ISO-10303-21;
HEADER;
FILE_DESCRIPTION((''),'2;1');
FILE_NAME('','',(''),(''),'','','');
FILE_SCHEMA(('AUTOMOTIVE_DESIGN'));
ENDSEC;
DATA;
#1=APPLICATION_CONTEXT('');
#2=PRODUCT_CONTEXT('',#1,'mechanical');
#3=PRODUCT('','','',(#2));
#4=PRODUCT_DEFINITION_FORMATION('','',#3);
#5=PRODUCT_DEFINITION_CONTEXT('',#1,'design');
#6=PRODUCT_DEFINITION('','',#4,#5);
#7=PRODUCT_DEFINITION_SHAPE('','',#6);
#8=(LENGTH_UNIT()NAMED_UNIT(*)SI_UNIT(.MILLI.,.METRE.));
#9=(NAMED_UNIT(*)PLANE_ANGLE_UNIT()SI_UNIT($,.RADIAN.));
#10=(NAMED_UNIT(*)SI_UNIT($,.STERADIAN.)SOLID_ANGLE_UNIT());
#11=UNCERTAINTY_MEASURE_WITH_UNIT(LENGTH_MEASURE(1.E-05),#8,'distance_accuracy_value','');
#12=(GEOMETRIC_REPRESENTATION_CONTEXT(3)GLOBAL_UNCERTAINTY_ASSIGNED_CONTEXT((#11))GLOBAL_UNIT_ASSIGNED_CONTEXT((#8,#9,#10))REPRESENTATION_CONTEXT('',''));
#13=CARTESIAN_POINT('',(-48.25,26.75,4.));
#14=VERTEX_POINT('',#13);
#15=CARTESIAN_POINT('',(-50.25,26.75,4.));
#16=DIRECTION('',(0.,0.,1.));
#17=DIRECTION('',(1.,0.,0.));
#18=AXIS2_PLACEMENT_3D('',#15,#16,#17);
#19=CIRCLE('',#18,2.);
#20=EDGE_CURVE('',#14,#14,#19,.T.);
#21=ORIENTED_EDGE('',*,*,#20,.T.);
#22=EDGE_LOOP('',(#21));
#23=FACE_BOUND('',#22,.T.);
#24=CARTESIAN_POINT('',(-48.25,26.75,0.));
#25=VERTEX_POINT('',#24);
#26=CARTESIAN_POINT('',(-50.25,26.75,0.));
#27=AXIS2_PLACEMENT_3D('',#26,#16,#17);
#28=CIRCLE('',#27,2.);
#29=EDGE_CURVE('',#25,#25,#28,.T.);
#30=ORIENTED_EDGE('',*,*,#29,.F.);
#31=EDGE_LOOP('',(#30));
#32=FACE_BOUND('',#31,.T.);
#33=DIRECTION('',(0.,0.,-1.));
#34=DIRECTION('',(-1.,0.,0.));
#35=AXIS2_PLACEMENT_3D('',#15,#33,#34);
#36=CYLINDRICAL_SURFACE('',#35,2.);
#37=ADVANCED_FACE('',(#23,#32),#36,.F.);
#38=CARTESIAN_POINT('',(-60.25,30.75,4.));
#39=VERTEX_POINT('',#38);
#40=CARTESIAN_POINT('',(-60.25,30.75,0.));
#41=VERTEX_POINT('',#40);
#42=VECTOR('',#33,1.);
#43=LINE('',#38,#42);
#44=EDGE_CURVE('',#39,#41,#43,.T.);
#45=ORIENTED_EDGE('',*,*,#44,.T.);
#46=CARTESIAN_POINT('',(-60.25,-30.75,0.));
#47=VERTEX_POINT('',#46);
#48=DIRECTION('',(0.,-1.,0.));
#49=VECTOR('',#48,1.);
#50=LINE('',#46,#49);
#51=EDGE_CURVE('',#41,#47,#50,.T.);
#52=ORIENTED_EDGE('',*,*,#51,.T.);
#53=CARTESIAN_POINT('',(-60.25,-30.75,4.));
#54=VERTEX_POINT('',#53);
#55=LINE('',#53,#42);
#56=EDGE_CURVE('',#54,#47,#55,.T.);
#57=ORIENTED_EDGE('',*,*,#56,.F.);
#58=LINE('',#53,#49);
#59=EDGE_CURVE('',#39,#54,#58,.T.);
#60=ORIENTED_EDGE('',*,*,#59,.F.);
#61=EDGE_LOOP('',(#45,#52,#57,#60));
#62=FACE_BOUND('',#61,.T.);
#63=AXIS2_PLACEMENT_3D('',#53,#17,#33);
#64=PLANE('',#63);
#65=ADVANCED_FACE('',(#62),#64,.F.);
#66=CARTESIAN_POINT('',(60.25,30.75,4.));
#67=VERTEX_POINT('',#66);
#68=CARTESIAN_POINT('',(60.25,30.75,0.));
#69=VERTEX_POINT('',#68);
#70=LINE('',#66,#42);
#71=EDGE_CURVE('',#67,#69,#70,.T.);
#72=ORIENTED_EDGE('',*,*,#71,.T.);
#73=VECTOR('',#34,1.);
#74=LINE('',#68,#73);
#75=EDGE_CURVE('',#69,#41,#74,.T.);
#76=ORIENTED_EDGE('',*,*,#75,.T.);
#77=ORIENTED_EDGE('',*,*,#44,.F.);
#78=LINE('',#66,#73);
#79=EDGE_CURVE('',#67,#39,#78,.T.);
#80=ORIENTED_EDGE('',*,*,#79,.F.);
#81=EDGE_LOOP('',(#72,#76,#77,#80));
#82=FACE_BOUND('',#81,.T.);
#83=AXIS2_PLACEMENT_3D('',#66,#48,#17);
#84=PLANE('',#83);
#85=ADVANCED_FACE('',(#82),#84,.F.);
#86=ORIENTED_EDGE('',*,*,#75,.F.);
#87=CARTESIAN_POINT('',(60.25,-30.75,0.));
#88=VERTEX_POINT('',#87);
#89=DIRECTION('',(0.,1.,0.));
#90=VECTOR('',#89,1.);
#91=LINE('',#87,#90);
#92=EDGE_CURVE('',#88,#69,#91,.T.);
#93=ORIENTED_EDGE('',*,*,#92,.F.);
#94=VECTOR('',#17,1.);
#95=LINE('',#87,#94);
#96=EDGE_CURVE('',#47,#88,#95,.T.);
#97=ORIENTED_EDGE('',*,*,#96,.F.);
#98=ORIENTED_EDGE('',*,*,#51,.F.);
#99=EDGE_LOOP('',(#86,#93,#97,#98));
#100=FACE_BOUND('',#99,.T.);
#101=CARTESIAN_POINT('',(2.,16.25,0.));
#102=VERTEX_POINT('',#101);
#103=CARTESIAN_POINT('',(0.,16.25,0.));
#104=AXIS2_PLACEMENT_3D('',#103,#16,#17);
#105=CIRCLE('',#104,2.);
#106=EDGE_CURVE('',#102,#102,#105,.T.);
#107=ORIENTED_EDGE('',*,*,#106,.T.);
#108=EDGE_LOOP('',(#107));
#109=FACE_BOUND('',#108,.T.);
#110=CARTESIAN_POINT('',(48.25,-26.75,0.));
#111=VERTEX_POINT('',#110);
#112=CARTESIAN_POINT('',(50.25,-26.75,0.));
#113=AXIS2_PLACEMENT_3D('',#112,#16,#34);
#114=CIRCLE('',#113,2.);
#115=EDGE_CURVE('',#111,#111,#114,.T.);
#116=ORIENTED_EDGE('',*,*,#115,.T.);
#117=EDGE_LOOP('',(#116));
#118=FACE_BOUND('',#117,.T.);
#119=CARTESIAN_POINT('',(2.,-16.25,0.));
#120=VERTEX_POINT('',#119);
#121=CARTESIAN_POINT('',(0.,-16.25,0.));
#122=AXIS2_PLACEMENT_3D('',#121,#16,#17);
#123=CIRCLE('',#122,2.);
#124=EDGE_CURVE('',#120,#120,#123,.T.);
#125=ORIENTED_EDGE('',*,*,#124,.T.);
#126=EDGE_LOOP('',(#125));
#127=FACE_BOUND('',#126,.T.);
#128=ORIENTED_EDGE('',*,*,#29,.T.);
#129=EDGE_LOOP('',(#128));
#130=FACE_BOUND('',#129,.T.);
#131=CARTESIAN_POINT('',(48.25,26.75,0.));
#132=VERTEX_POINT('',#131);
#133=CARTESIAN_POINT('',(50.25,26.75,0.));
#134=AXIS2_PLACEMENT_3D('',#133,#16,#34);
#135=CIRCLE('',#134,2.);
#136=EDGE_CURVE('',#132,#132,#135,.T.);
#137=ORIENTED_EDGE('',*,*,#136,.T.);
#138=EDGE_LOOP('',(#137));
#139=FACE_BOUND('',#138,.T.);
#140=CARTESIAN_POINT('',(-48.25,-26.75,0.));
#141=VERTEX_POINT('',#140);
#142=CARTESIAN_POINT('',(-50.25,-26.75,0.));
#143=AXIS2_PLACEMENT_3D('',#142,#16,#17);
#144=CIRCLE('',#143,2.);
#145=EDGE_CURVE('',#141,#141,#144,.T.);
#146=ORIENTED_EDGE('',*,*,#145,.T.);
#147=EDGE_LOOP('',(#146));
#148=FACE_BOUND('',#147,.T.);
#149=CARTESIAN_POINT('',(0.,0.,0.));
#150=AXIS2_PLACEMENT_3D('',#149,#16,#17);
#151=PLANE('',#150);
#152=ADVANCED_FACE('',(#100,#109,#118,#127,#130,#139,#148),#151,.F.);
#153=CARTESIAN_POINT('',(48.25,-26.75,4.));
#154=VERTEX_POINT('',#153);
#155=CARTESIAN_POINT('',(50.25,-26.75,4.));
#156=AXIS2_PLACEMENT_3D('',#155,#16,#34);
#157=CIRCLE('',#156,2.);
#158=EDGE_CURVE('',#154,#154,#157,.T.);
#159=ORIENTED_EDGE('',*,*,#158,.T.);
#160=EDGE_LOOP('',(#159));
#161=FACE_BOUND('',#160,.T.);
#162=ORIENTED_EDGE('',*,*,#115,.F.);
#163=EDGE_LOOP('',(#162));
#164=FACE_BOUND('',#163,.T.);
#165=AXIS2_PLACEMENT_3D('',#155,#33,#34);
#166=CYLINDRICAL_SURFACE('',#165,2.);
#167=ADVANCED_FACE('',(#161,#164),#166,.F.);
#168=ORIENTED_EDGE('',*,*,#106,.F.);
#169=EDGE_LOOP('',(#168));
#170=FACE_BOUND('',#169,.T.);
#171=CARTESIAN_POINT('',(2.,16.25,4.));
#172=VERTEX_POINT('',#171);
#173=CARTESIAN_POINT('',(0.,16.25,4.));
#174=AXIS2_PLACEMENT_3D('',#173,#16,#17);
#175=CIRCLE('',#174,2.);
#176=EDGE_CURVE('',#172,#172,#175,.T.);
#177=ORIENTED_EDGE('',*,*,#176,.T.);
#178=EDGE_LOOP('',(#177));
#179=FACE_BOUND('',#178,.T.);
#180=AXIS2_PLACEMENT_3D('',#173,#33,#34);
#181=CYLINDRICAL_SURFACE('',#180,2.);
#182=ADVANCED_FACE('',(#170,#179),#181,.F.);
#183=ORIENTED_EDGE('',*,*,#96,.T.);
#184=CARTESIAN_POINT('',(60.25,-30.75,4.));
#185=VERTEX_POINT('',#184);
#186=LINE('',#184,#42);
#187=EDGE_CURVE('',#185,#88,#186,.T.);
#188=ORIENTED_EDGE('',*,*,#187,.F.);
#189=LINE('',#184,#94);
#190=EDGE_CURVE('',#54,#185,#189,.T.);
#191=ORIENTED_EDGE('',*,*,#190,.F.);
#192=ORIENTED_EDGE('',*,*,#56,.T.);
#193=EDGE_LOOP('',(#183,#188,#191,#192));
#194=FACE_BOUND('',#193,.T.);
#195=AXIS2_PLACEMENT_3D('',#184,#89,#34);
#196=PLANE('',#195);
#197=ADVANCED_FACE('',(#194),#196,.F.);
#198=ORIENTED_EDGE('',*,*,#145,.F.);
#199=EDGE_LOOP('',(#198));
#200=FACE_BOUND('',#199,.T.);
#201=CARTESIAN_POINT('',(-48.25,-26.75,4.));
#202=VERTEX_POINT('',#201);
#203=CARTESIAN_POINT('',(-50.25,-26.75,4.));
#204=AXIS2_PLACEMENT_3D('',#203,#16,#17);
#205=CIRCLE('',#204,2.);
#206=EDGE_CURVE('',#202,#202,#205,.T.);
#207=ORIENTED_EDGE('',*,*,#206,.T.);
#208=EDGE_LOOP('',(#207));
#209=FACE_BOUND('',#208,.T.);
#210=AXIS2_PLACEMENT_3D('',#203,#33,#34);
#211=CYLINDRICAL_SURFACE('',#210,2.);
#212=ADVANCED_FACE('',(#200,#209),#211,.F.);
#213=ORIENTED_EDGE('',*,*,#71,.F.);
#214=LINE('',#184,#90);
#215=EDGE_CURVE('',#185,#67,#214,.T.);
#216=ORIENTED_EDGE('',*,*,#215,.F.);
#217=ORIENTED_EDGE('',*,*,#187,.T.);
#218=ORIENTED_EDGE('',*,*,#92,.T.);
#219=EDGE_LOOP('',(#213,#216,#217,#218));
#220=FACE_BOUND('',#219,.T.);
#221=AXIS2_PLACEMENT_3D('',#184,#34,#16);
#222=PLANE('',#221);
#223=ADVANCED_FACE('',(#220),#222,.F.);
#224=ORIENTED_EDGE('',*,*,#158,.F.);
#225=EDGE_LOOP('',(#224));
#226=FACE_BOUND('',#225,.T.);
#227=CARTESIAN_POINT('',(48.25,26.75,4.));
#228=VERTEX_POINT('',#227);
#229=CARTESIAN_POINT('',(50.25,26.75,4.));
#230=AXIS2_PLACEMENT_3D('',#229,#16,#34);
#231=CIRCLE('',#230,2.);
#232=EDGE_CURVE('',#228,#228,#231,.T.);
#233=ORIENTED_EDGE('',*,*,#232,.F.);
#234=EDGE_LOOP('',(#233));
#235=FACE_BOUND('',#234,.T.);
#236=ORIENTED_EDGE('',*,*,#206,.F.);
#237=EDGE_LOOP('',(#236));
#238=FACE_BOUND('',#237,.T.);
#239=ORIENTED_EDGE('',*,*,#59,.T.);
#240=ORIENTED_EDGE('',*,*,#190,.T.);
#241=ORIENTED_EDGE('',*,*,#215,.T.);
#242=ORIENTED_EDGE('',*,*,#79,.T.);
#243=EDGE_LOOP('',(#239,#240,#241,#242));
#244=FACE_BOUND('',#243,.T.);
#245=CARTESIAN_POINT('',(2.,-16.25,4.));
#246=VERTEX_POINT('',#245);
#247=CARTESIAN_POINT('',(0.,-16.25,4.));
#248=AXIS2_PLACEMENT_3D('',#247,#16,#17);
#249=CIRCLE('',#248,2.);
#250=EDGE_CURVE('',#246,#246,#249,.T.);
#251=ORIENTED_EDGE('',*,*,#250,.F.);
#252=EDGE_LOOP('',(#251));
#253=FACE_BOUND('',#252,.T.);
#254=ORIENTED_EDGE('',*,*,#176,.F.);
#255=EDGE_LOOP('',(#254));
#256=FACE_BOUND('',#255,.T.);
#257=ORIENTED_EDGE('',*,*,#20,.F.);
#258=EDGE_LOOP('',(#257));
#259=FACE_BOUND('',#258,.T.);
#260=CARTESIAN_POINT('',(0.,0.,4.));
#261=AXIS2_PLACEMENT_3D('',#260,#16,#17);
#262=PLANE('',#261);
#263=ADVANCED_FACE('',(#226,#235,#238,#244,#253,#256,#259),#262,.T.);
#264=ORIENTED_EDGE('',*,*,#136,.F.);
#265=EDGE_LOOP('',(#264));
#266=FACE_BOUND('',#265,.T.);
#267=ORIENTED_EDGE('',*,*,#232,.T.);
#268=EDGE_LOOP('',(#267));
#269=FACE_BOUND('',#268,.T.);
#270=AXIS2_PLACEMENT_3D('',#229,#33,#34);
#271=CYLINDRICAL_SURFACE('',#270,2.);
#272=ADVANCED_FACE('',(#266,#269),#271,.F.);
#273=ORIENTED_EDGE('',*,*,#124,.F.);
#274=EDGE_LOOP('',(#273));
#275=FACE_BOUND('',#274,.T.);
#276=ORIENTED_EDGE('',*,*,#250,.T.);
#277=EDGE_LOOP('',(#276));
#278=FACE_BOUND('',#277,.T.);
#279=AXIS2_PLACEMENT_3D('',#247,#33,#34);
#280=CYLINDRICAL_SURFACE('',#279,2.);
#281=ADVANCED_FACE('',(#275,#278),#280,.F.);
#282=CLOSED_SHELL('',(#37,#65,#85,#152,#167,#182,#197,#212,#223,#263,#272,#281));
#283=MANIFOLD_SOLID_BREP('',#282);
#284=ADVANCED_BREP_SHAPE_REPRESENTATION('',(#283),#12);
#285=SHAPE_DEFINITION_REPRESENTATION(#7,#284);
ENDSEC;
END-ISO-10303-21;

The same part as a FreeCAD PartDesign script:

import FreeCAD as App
import Part
import Sketcher
Q = App.Units.Quantity


def add_polygon(sketch, points):
    """Adds a closed chain of lines whose ends are joined by coincident constraints."""
    first, n = sketch.GeometryCount, len(points)
    for a, b in zip(points, points[1:] + points[:1]):
        sketch.addGeometry(Part.LineSegment(App.Vector(*a, 0), App.Vector(*b, 0)), False)
    for i in range(n):
        sketch.addConstraint(Sketcher.Constraint("Coincident", first + i, 2, first + (i + 1) % n, 1))

doc = App.newDocument("Part")
body = doc.addObject("PartDesign::Body", "Body")

# Sketch on XY plane
sketch1 = body.newObject("Sketcher::SketchObject", "Sketch")
sketch1.AttachmentSupport = (doc.getObject("XY_Plane"), [""])
sketch1.MapMode = "FlatFace"
add_polygon(sketch1, [(-60.2, 30.8), (-60.2, -30.8), (60.2, -30.8), (60.2, 30.8)])  # lines 0-3
sketch1.addGeometry(Part.Circle(App.Vector(-50.2, -26.8, 0), App.Vector(0, 0, 1), 2), False)  # 4
sketch1.addGeometry(Part.Circle(App.Vector(0, -16.2, 0), App.Vector(0, 0, 1), 2), False)  # 5
sketch1.addGeometry(Part.Circle(App.Vector(50.2, -26.8, 0), App.Vector(0, 0, 1), 2), False)  # 6
sketch1.addGeometry(Part.Circle(App.Vector(-50.2, 26.8, 0), App.Vector(0, 0, 1), 2), False)  # 7
sketch1.addGeometry(Part.Circle(App.Vector(0, 16.2, 0), App.Vector(0, 0, 1), 2), False)  # 8
sketch1.addGeometry(Part.Circle(App.Vector(50.2, 26.8, 0), App.Vector(0, 0, 1), 2), False)  # 9
sketch1.addConstraint([
    Sketcher.Constraint("Vertical", 0),
    Sketcher.Constraint("Horizontal", 1),
    Sketcher.Constraint("Vertical", 2),
    Sketcher.Constraint("Horizontal", 3),
    Sketcher.Constraint("Equal", 4, 5),
    Sketcher.Constraint("Equal", 5, 6),
    Sketcher.Constraint("Equal", 6, 7),
    Sketcher.Constraint("Equal", 7, 8),
    Sketcher.Constraint("Equal", 8, 9),
    Sketcher.Constraint("Symmetric", 6, 3, 7, 3, -1, 1),
    Sketcher.Constraint("Symmetric", 5, 3, 8, 3, -1, 1),
    Sketcher.Constraint("Symmetric", 4, 3, 9, 3, -1, 1),
    Sketcher.Constraint("Symmetric", 0, 2, 2, 2, -1, 1),
    Sketcher.Constraint("Symmetric", 4, 3, 6, 3, -2),
    Sketcher.Constraint("PointOnObject", 5, 3, -2),
    Sketcher.Constraint("Diameter", 4, Q("4 mm")),
    Sketcher.Constraint("DistanceX", 1, 1, 1, 2, Q("120.5 mm")),
    Sketcher.Constraint("DistanceY", 0, 2, 0, 1, Q("61.5 mm")),
    Sketcher.Constraint("DistanceY", 5, 3, 7, 3, Q("43 mm")),
    Sketcher.Constraint("DistanceX", 0, 2, 4, 3, Q("10 mm")),
    Sketcher.Constraint("DistanceY", 0, 2, 4, 3, Q("4 mm")),
])
pad1 = body.newObject("PartDesign::Pad", "Pad")
pad1.Profile = sketch1
pad1.Length = 4

doc.recompute()
